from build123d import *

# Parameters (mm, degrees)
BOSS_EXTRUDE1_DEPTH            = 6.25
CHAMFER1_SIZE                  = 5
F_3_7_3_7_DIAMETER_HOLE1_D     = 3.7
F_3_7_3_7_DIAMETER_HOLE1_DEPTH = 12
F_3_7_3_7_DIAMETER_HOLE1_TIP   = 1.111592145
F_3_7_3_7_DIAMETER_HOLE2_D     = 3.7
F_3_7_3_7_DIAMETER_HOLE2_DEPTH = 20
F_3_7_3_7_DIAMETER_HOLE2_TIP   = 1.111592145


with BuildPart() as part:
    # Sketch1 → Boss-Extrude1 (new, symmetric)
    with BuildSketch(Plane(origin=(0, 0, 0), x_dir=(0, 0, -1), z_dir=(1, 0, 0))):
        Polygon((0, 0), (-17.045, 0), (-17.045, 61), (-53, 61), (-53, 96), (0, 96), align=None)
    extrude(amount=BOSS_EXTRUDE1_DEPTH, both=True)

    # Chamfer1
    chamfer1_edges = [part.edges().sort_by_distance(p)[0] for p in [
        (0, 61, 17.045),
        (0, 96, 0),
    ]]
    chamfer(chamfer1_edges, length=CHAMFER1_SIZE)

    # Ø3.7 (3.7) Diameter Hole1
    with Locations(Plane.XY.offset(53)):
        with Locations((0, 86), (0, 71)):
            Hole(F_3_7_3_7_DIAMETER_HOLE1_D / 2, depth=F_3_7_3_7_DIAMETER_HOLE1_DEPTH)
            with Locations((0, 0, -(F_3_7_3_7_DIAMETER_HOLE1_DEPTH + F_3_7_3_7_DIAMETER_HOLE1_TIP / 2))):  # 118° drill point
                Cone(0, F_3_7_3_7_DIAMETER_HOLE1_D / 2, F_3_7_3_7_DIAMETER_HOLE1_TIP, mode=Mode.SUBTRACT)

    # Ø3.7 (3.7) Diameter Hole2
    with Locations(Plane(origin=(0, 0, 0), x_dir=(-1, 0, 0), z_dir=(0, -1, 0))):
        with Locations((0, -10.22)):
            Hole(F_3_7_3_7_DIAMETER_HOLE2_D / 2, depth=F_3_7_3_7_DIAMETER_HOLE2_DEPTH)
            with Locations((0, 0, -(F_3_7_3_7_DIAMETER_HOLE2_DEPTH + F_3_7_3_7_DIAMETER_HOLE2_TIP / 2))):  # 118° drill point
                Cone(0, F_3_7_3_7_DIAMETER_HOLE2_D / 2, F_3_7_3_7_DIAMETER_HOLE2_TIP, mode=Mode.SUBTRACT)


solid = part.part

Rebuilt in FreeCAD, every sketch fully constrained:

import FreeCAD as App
import Part
import Sketcher

V = App.Vector


def edges_at(feature, points):
    """Names of the edges that pass closest to the given points."""
    edges = feature.Shape.Edges
    near = lambda p: min(range(len(edges)), key=lambda i: edges[i].distToShape(Part.Vertex(*p))[0])
    return sorted({f"Edge{near(p) + 1}" for p in points})


def add_polygon(sketch, points):
    """Adds a closed chain of lines whose ends are joined by coincident constraints."""
    first, n = sketch.GeometryCount, len(points)
    for a, b in zip(points, points[1:] + points[:1]):
        sketch.addGeometry(Part.LineSegment(App.Vector(*a, 0), App.Vector(*b, 0)), False)
    for i in range(n):
        sketch.addConstraint(Sketcher.Constraint("Coincident", first + i, 2, first + (i + 1) % n, 1))

doc = App.newDocument("Part")
body = doc.addObject("PartDesign::Body", "Body")

# Sketch on YZ plane
sketch1 = body.newObject("Sketcher::SketchObject", "Sketch")
sketch1.AttachmentSupport = (doc.getObject("YZ_Plane"), [""])
sketch1.MapMode = "FlatFace"
add_polygon(sketch1, [(0, 17.045), (0, 0), (96, 0), (96, 53), (61, 53), (61, 17.045)])  # lines 0-5
sketch1.addConstraint(Sketcher.Constraint("Vertical", 0))
sketch1.addConstraint(Sketcher.Constraint("Horizontal", 1))
sketch1.addConstraint(Sketcher.Constraint("Vertical", 2))
sketch1.addConstraint(Sketcher.Constraint("Horizontal", 3))
sketch1.addConstraint(Sketcher.Constraint("Vertical", 4))
sketch1.addConstraint(Sketcher.Constraint("Horizontal", 5))
sketch1.addConstraint(Sketcher.Constraint("Coincident", 0, 2, -1, 1))
sketch1.addConstraint(Sketcher.Constraint("DistanceX", 1, 1, 1, 2, 96.0))
sketch1.addConstraint(Sketcher.Constraint("DistanceX", 3, 2, 3, 1, 35.0))
sketch1.addConstraint(Sketcher.Constraint("DistanceY", 2, 1, 2, 2, 53.0))
sketch1.addConstraint(Sketcher.Constraint("DistanceY", 0, 2, 0, 1, 17.045))
pad1 = body.newObject("PartDesign::Pad", "Pad")
pad1.Profile = sketch1
pad1.Length = 12.5
pad1.Midplane = True
doc.recompute()

chamfer = body.newObject("PartDesign::Chamfer", "Chamfer")
chamfer.Base = (pad1, edges_at(pad1, [(0, 61, 17.045), (0, 96, 0)]))
chamfer.Size = 5

# Sketch on XY plane
sketch2 = body.newObject("Sketcher::SketchObject", "Sketch001")
sketch2.AttachmentSupport = (doc.getObject("XY_Plane"), [""])
sketch2.MapMode = "FlatFace"
sketch2.AttachmentOffset = App.Placement(V(0, 0, 53), App.Rotation())
sketch2.addGeometry(Part.Circle(V(0, 86, 0), V(0, 0, 1), 1.85), False)
sketch2.addGeometry(Part.Circle(V(0, 71, 0), V(0, 0, 1), 1.85), False)
sketch2.addConstraint(Sketcher.Constraint("Equal", 0, 1))
sketch2.addConstraint(Sketcher.Constraint("PointOnObject", 0, 3, -2))
sketch2.addConstraint(Sketcher.Constraint("PointOnObject", 1, 3, -2))
sketch2.addConstraint(Sketcher.Constraint("Diameter", 0, 3.7))
sketch2.addConstraint(Sketcher.Constraint("DistanceY", -1, 1, 0, 3, 86.0))
sketch2.addConstraint(Sketcher.Constraint("DistanceY", -1, 1, 1, 3, 71.0))
doc.recompute()
hole = body.newObject("PartDesign::Hole", "Hole")
hole.Profile = sketch2
hole.ThreadType = "None"
hole.Diameter = 3.7
hole.DepthType = "Dimension"
hole.Depth = 12
hole.DrillPoint = "Angled"
hole.DrillPointAngle = 118

# Sketch on XZ plane
sketch3 = body.newObject("Sketcher::SketchObject", "Sketch002")
sketch3.AttachmentSupport = (doc.getObject("XZ_Plane"), [""])
sketch3.MapMode = "FlatFace"
sketch3.addGeometry(Part.Circle(V(0, 10.22, 0), V(0, 0, 1), 1.85), False)
sketch3.addConstraint(Sketcher.Constraint("PointOnObject", 0, 3, -2))
sketch3.addConstraint(Sketcher.Constraint("Diameter", 0, 3.7))
sketch3.addConstraint(Sketcher.Constraint("DistanceY", -1, 1, 0, 3, 10.22))
doc.recompute()
hole2 = body.newObject("PartDesign::Hole", "Hole001")
hole2.Profile = sketch3
hole2.ThreadType = "None"
hole2.Diameter = 3.7
hole2.DepthType = "Dimension"
hole2.Depth = 20
hole2.DrillPoint = "Angled"
hole2.DrillPointAngle = 118

doc.recompute()
